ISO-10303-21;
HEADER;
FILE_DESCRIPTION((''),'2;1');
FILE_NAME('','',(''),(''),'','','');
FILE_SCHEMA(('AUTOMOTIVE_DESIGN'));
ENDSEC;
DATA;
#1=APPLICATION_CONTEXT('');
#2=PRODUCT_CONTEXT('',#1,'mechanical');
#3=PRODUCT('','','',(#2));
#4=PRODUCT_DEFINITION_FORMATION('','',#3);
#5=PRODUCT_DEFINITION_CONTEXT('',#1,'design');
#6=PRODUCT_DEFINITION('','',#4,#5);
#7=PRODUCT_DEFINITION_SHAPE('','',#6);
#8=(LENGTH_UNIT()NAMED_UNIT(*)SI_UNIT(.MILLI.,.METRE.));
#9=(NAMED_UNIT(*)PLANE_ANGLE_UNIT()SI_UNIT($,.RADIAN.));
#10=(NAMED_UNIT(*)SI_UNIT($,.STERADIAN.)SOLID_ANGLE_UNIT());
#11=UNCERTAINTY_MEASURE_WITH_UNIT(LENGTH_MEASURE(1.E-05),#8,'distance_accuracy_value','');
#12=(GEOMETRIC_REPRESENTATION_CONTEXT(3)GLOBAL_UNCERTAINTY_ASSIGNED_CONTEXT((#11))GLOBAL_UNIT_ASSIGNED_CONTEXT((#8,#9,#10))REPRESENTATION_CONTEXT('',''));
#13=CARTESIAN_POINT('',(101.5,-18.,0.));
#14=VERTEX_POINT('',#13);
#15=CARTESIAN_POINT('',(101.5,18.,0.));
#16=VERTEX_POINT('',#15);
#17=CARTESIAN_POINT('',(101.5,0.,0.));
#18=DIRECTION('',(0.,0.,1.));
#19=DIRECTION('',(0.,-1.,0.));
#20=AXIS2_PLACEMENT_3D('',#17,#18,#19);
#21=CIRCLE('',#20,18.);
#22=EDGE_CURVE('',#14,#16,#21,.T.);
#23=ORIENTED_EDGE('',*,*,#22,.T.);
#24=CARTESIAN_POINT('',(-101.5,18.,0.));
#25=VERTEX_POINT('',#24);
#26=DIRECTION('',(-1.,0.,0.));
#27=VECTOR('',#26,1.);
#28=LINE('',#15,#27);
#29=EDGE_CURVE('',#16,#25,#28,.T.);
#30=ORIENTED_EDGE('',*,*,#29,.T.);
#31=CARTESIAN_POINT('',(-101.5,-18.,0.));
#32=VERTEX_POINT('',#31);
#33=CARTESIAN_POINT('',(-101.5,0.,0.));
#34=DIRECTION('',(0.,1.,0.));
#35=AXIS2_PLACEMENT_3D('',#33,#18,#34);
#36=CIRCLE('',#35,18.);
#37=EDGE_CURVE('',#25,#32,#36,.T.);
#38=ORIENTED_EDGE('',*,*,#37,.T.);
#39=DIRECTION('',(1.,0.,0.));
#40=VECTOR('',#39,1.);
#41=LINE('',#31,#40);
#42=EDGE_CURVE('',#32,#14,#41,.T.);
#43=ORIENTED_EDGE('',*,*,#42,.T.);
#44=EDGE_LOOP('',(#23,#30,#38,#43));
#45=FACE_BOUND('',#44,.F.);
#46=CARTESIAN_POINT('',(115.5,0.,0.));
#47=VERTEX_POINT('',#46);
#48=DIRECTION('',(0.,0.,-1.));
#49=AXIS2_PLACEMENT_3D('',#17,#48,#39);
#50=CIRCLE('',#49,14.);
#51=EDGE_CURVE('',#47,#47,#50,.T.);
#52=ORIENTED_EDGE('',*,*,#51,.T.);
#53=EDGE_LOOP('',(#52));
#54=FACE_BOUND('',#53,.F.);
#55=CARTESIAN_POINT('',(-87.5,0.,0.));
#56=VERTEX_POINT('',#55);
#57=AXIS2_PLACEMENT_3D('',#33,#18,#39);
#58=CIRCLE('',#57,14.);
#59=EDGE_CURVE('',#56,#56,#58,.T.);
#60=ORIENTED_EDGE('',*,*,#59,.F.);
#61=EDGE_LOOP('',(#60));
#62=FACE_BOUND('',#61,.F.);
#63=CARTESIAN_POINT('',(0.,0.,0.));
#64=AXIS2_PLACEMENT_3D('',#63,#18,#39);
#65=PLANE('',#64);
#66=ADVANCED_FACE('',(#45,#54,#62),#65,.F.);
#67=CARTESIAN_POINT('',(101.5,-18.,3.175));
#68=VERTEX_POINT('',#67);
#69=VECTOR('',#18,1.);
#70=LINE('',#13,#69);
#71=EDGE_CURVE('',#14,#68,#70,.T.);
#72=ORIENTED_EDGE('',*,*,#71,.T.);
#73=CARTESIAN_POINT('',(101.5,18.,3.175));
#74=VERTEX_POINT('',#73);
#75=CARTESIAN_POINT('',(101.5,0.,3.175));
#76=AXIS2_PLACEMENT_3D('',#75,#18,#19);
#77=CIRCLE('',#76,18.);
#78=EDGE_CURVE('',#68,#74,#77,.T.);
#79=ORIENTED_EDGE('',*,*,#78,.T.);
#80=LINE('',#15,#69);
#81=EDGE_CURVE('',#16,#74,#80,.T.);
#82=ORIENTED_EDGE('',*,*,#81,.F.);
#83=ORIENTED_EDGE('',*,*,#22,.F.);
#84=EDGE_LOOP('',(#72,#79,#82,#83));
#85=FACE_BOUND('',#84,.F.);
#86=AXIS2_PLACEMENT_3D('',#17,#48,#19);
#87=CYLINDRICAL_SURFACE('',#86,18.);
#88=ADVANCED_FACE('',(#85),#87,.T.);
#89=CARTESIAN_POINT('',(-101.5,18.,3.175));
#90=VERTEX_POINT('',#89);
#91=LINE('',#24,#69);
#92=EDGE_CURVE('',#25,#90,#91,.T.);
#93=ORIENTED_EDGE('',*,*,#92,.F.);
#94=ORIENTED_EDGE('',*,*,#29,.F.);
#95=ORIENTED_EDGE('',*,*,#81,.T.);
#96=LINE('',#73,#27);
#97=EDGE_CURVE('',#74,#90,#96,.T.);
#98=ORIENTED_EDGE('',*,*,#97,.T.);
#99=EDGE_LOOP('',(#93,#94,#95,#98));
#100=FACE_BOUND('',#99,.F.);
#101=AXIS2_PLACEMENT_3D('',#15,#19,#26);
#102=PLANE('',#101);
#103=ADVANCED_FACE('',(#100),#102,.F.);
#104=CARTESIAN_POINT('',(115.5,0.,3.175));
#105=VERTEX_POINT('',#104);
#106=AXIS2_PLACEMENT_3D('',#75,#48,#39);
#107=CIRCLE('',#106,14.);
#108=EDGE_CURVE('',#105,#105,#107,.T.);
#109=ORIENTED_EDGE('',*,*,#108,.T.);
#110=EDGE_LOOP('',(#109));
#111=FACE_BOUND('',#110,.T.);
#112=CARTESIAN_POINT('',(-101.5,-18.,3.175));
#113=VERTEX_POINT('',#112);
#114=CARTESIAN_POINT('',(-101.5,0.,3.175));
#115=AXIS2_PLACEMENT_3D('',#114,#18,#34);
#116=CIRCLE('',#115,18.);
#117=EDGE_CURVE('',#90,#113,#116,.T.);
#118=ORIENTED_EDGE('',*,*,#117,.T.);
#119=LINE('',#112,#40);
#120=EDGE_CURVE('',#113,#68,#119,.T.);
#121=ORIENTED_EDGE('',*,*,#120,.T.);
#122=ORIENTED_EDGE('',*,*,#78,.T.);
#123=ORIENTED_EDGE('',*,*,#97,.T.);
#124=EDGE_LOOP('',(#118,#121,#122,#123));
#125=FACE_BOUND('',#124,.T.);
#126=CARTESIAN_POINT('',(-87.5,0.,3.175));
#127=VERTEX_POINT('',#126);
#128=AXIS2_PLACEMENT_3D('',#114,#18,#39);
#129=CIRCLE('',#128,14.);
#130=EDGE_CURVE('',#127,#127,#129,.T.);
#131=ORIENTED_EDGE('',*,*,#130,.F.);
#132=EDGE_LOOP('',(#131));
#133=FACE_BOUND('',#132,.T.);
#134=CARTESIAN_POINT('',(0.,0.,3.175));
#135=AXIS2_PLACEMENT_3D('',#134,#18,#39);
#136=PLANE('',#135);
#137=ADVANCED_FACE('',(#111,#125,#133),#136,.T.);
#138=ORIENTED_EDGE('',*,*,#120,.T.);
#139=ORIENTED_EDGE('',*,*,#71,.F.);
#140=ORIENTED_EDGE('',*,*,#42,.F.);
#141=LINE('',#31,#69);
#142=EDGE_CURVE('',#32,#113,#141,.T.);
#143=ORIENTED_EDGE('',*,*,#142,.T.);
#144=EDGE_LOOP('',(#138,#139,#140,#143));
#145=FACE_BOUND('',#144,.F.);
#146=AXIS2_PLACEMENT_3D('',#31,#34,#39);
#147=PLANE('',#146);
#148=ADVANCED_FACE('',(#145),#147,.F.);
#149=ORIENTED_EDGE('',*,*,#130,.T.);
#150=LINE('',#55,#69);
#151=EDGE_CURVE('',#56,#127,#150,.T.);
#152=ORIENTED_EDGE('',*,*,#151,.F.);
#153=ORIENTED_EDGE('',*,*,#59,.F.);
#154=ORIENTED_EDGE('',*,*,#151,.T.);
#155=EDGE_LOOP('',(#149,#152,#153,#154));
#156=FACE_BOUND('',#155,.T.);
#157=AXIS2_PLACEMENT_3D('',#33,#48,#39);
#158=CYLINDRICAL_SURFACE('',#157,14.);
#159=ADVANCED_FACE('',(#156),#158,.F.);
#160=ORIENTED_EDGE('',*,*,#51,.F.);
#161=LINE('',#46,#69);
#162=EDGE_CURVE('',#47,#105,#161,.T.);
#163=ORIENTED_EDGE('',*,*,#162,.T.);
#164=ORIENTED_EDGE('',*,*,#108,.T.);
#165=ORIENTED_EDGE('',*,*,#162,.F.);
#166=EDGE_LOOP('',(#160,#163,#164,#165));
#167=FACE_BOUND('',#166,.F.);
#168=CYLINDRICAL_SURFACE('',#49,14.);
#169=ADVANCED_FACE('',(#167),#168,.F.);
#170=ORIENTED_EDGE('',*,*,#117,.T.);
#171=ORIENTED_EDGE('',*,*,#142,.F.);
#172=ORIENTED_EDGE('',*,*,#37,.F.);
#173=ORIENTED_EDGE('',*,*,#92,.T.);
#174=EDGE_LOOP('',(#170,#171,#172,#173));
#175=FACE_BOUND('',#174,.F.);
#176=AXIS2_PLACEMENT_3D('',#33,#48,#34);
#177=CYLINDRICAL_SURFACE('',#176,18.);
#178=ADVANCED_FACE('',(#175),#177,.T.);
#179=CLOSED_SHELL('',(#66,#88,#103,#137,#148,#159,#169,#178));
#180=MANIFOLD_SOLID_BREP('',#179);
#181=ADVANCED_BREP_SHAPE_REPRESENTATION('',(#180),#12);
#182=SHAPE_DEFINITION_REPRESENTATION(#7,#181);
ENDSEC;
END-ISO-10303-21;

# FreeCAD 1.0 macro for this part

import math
import FreeCAD as App
import Part
import Sketcher

doc = App.newDocument("Part")
body = doc.addObject("PartDesign::Body", "Body")

# Sketch on XY plane
sketch1 = body.newObject("Sketcher::SketchObject", "Sketch")
sketch1.AttachmentSupport = (doc.getObject("XY_Plane"), [""])
sketch1.MapMode = "FlatFace"
sketch1.addGeometry(Part.LineSegment(App.Vector(102, 18, 0), App.Vector(-102, 18, 0)), False)
sketch1.addGeometry(Part.ArcOfCircle(Part.Circle(App.Vector(-102, 0, 0), App.Vector(0, 0, 1), 18), math.radians(90), math.radians(270)), False)
sketch1.addGeometry(Part.LineSegment(App.Vector(-102, -18, 0), App.Vector(102, -18, 0)), False)
sketch1.addGeometry(Part.ArcOfCircle(Part.Circle(App.Vector(102, 0, 0), App.Vector(0, 0, 1), 18), math.radians(-90), math.radians(90)), False)
sketch1.addGeometry(Part.Circle(App.Vector(-102, 0, 0), App.Vector(0, 0, 1), 14), False)
sketch1.addGeometry(Part.Circle(App.Vector(102, 0, 0), App.Vector(0, 0, 1), 14), False)
sketch1.addConstraint(Sketcher.Constraint("Tangent", 0, 2, 1, 1))
sketch1.addConstraint(Sketcher.Constraint("Tangent", 1, 2, 2, 1))
sketch1.addConstraint(Sketcher.Constraint("Tangent", 2, 2, 3, 1))
sketch1.addConstraint(Sketcher.Constraint("Tangent", 3, 2, 0, 1))
sketch1.addConstraint(Sketcher.Constraint("Horizontal", 0))
sketch1.addConstraint(Sketcher.Constraint("Horizontal", 2))
sketch1.addConstraint(Sketcher.Constraint("Coincident", 4, 3, 1, 3))
sketch1.addConstraint(Sketcher.Constraint("Coincident", 5, 3, 3, 3))
sketch1.addConstraint(Sketcher.Constraint("Equal", 4, 5))
sketch1.addConstraint(Sketcher.Constraint("Symmetric", 1, 3, 3, 3, -1, 1))
sketch1.addConstraint(Sketcher.Constraint("Diameter", 4, 28.0))
sketch1.addConstraint(Sketcher.Constraint("Radius", 1, 18.0))
sketch1.addConstraint(Sketcher.Constraint("DistanceX", 0, 2, 0, 1, 203.0))
pad1 = body.newObject("PartDesign::Pad", "Pad")
pad1.Profile = sketch1
pad1.Length = 3.175

doc.recompute()
